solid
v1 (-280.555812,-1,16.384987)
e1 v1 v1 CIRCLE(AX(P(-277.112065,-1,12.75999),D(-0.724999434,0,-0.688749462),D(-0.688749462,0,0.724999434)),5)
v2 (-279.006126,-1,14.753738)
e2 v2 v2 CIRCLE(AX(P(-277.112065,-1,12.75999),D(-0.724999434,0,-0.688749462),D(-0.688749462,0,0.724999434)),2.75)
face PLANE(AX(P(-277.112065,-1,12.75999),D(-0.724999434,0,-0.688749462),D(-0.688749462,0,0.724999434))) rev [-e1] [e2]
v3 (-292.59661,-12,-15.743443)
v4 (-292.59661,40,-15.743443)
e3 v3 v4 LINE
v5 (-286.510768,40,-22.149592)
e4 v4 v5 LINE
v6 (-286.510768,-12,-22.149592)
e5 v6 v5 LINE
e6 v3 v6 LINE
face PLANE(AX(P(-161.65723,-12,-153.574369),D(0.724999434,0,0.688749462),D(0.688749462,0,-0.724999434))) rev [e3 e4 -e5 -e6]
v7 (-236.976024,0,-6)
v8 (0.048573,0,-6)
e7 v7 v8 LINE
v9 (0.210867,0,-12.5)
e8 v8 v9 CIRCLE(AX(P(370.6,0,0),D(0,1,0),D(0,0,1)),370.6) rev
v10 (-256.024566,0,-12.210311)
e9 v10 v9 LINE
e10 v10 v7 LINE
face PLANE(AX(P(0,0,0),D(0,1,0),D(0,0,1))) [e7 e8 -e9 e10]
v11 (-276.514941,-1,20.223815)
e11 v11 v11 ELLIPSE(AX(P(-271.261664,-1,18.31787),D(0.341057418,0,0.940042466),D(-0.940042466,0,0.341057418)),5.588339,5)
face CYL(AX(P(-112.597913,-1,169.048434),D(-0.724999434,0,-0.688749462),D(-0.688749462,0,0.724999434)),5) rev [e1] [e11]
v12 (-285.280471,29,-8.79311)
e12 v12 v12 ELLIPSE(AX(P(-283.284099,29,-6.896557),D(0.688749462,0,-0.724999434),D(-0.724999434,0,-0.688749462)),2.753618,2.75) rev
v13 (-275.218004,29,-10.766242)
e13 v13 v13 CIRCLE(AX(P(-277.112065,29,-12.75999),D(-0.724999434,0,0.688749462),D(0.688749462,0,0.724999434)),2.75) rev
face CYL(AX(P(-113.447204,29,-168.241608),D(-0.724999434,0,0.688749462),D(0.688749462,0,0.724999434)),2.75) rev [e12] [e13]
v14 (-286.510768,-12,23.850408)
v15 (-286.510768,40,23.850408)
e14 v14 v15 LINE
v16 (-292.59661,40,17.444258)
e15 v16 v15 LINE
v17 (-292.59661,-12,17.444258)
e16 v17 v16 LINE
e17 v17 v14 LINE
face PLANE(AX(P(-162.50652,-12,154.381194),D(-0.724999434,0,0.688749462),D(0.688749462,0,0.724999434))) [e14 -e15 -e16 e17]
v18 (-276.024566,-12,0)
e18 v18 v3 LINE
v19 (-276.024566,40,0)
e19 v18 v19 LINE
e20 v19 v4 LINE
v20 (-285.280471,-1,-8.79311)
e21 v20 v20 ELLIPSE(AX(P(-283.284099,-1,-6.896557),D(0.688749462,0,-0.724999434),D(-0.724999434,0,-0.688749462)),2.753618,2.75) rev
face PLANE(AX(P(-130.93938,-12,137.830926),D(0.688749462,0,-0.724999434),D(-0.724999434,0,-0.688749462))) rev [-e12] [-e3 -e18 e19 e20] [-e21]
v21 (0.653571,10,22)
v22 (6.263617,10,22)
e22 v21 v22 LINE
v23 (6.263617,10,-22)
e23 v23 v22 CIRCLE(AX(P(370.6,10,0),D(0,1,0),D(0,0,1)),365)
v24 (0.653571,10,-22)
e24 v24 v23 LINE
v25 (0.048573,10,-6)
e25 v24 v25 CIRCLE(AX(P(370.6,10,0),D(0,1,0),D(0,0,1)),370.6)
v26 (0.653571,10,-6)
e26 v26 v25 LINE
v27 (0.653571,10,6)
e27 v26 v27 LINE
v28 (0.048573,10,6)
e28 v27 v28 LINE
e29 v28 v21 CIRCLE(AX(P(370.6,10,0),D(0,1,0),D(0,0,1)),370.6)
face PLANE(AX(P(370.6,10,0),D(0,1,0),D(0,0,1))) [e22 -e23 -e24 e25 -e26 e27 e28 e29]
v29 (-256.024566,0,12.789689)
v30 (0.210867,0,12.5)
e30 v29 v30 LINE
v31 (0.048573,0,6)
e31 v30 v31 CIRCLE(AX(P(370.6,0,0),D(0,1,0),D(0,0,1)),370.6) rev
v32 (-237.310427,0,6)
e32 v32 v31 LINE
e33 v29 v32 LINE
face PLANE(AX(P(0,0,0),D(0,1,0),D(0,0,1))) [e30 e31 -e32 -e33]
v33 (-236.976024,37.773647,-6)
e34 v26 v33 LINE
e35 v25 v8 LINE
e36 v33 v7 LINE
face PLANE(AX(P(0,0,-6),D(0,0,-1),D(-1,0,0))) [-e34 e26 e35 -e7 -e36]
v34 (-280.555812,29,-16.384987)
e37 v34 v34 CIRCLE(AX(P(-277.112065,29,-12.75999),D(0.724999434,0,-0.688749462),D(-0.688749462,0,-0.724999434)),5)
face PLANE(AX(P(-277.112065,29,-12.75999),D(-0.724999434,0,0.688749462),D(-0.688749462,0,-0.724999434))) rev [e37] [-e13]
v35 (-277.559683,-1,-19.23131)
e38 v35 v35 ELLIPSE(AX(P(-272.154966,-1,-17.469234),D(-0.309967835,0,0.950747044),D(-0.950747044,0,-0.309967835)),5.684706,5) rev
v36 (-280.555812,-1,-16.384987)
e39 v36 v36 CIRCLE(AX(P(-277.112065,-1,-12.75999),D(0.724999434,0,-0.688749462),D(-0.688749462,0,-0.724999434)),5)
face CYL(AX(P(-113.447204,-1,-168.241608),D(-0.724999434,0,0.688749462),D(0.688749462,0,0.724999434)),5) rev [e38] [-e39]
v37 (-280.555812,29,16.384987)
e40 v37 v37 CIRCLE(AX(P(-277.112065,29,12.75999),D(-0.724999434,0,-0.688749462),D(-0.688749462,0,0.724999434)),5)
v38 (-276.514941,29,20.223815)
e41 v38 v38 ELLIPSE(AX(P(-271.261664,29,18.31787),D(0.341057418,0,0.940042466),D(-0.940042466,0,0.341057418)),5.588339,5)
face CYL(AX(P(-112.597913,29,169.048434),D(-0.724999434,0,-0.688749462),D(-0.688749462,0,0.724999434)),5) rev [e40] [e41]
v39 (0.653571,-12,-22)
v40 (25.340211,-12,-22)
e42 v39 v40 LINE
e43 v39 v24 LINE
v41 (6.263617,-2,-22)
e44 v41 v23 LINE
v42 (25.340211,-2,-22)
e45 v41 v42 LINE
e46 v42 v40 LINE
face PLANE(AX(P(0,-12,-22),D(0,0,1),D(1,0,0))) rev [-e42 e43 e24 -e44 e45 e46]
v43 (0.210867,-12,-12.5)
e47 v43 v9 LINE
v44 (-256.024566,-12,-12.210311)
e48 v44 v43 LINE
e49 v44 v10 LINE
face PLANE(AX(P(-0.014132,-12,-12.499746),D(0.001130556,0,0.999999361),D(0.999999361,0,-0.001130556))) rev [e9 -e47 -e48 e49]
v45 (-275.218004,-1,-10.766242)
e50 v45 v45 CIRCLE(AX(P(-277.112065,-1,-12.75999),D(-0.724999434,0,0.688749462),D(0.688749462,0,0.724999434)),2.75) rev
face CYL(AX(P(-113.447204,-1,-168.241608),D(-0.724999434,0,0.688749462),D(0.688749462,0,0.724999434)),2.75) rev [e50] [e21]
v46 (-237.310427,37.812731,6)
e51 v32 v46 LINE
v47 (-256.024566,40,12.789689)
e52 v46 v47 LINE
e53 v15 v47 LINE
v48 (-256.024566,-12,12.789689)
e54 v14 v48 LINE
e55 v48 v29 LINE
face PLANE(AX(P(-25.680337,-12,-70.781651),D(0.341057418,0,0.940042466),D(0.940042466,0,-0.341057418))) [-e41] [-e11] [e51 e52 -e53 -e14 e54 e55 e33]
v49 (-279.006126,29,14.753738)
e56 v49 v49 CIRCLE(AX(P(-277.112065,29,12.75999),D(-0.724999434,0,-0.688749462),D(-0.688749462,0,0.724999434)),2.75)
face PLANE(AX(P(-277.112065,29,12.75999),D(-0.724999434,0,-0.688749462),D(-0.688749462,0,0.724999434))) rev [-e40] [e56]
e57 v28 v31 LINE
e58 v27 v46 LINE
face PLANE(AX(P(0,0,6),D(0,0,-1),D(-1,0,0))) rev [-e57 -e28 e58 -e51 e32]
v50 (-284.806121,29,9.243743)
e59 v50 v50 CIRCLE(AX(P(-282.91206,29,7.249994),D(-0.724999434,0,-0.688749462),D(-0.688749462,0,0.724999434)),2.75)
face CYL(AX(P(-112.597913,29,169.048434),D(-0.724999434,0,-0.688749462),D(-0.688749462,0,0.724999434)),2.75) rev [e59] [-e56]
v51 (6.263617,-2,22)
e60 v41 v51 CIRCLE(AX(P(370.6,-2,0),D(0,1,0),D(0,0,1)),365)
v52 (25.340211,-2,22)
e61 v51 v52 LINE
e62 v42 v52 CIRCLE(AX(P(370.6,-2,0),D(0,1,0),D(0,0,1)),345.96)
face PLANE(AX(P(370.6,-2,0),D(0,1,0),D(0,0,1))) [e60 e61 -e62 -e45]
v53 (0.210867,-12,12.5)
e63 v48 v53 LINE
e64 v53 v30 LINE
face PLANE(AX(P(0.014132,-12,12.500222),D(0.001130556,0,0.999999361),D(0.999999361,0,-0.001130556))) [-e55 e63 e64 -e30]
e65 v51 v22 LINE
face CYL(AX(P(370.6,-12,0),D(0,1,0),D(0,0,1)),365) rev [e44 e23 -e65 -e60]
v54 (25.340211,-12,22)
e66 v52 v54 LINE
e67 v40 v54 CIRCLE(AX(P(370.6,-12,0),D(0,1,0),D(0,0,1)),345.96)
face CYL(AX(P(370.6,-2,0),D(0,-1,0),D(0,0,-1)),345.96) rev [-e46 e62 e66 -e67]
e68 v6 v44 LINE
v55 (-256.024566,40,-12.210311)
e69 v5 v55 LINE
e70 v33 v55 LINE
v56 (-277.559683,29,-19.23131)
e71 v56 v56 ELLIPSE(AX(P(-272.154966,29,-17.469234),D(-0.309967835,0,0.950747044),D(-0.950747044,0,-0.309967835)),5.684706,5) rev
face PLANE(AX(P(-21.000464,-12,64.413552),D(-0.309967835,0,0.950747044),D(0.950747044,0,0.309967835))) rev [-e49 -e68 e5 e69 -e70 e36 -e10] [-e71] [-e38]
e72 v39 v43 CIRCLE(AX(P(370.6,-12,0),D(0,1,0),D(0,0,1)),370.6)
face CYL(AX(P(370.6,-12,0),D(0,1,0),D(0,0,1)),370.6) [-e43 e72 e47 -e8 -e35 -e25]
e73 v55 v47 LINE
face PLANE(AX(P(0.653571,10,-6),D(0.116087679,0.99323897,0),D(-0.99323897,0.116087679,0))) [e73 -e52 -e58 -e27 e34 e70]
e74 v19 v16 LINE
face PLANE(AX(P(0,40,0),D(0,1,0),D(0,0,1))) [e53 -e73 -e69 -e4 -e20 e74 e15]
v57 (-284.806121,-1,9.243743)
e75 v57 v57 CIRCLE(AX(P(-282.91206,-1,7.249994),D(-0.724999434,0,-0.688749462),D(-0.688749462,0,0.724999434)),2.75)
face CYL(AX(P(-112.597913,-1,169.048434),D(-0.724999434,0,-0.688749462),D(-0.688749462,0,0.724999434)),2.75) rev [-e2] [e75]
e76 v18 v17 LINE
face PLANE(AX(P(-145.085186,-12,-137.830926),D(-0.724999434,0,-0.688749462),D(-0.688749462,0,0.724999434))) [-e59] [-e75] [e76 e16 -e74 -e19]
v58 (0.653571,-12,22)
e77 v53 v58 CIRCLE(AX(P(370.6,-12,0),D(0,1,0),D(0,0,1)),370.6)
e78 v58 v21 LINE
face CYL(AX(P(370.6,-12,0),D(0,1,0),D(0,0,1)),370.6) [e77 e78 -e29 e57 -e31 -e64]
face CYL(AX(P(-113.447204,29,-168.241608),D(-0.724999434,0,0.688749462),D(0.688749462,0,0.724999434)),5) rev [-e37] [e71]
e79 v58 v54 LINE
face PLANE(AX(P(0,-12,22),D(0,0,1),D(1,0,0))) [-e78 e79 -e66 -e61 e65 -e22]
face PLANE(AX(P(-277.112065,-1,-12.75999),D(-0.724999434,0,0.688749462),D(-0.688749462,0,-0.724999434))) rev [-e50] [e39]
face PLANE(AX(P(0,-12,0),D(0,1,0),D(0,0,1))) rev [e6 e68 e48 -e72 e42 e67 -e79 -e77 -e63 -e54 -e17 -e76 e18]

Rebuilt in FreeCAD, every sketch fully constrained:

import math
import FreeCAD as App
import Part
import Sketcher

doc = App.newDocument("Part")
body = doc.addObject("PartDesign::Body", "Body")

# Sketch on XZ plane
sketch1 = body.newObject("Sketcher::SketchObject", "Sketch")
sketch1.AttachmentSupport = (doc.getObject("XZ_Plane"), [""])
sketch1.MapMode = "FlatFace"
sketch1.addGeometry(Part.LineSegment(App.Vector(-293, -16, 0), App.Vector(-276, 0, 0)), False)
sketch1.addGeometry(Part.LineSegment(App.Vector(-276, 0, 0), App.Vector(-293, 17, 0)), False)
sketch1.addGeometry(Part.LineSegment(App.Vector(-293, 17, 0), App.Vector(-287, 24, 0)), False)
sketch1.addGeometry(Part.LineSegment(App.Vector(-287, 24, 0), App.Vector(-256, 13, 0)), False)
sketch1.addGeometry(Part.LineSegment(App.Vector(-256, 13, 0), App.Vector(0, 12, 0)), False)
sketch1.addGeometry(Part.ArcOfCircle(Part.Circle(App.Vector(371, 0, 0), App.Vector(0, 0, 1), 371), math.radians(176.6), math.radians(178.07)), False)
sketch1.addGeometry(Part.LineSegment(App.Vector(1, 22, 0), App.Vector(6, 22, 0)), False)
sketch1.addGeometry(Part.ArcOfCircle(Part.Circle(App.Vector(371, 0, 0), App.Vector(0, 0, 1), 365), math.radians(176.54), math.radians(183.46)), False)
sketch1.addGeometry(Part.LineSegment(App.Vector(6, -22, 0), App.Vector(1, -22, 0)), False)
sketch1.addGeometry(Part.ArcOfCircle(Part.Circle(App.Vector(371, 0, 0), App.Vector(0, 0, 1), 371), math.radians(-178.07), math.radians(-176.6)), False)
sketch1.addGeometry(Part.LineSegment(App.Vector(0, -12, 0), App.Vector(-256, -12, 0)), False)
sketch1.addGeometry(Part.LineSegment(App.Vector(-256, -12, 0), App.Vector(-287, -22, 0)), False)
sketch1.addGeometry(Part.LineSegment(App.Vector(-287, -22, 0), App.Vector(-293, -16, 0)), False)
sketch1.addConstraint(Sketcher.Constraint("Coincident", 0, 2, 1, 1))
sketch1.addConstraint(Sketcher.Constraint("Coincident", 1, 2, 2, 1))
sketch1.addConstraint(Sketcher.Constraint("Coincident", 2, 2, 3, 1))
sketch1.addConstraint(Sketcher.Constraint("Coincident", 3, 2, 4, 1))
sketch1.addConstraint(Sketcher.Constraint("Coincident", 4, 2, 5, 2))
sketch1.addConstraint(Sketcher.Constraint("Coincident", 5, 1, 6, 1))
sketch1.addConstraint(Sketcher.Constraint("Coincident", 6, 2, 7, 1))
sketch1.addConstraint(Sketcher.Constraint("Coincident", 7, 2, 8, 1))
sketch1.addConstraint(Sketcher.Constraint("Coincident", 8, 2, 9, 2))
sketch1.addConstraint(Sketcher.Constraint("Coincident", 9, 1, 10, 1))
sketch1.addConstraint(Sketcher.Constraint("Coincident", 10, 2, 11, 1))
sketch1.addConstraint(Sketcher.Constraint("Coincident", 11, 2, 12, 1))
sketch1.addConstraint(Sketcher.Constraint("Coincident", 12, 2, 0, 1))
sketch1.addConstraint(Sketcher.Constraint("Horizontal", 6))
sketch1.addConstraint(Sketcher.Constraint("Horizontal", 8))
sketch1.addConstraint(Sketcher.Constraint("Coincident", 7, 3, 5, 3))
sketch1.addConstraint(Sketcher.Constraint("Coincident", 9, 3, 5, 3))
sketch1.addConstraint(Sketcher.Constraint("Equal", 5, 9))
sketch1.addConstraint(Sketcher.Constraint("Symmetric", 6, 2, 7, 2, -1))
sketch1.addConstraint(Sketcher.Constraint("PointOnObject", 0, 2, -1))
sketch1.addConstraint(Sketcher.Constraint("Perpendicular", 0, 1))
sketch1.addConstraint(Sketcher.Constraint("Parallel", 4, 10))
sketch1.addConstraint(Sketcher.Constraint("Parallel", 1, 12))
sketch1.addConstraint(Sketcher.Constraint("Vertical", 4, 2, 9, 1))
sketch1.addConstraint(Sketcher.Constraint("Vertical", 3, 2, 10, 2))
sketch1.addConstraint(Sketcher.Constraint("Vertical", 2, 2, 11, 2))
sketch1.addConstraint(Sketcher.Constraint("Vertical", 1, 2, 12, 2))
sketch1.addConstraint(Sketcher.Constraint("Equal", 2, 12))
sketch1.addConstraint(Sketcher.Constraint("Radius", 7, 365.0))
sketch1.addConstraint(Sketcher.Constraint("DistanceY", -1, 1, 6, 2, 22.0))
sketch1.addConstraint(Sketcher.Constraint("DistanceX", 0, 2, 3, 2, 20.0))
sketch1.addConstraint(Sketcher.Constraint("DistanceY", 9, 1, 4, 2, 25.0))
sketch1.addConstraint(Sketcher.Constraint("DistanceY", 11, 2, 2, 2, 46.0))
sketch1.addConstraint(Sketcher.Constraint("DistanceX", -1, 1, 7, 3, 370.6))
sketch1.addConstraint(Sketcher.Constraint("Radius", 5, 370.599996))
sketch1.addConstraint(Sketcher.Constraint("DistanceY", 12, 2, 1, 2, 33.1877))
sketch1.addConstraint(Sketcher.Constraint("Distance", 0, 22.858011))
sketch1.addConstraint(Sketcher.Constraint("DistanceX", 1, 2, -1, 1, 292.59661))
sketch1.addConstraint(Sketcher.Constraint("DistanceY", -1, 1, 3, 2, 12.789689))
pad1 = body.newObject("PartDesign::Pad", "Pad")
pad1.Profile = sketch1
pad1.Length = 12

# Sketch on XZ plane
sketch2 = body.newObject("Sketcher::SketchObject", "Sketch001")
sketch2.AttachmentSupport = (doc.getObject("XZ_Plane"), [""])
sketch2.MapMode = "FlatFace"
sketch2.AttachmentOffset = App.Placement(App.Vector(0, 0, 2), App.Rotation())
sketch2.addGeometry(Part.LineSegment(App.Vector(25, -22, 0), App.Vector(6, -22, 0)), False)
sketch2.addGeometry(Part.ArcOfCircle(Part.Circle(App.Vector(371, 0, 0), App.Vector(0, 0, 1), 365), math.radians(176.54), math.radians(183.46)), False)
sketch2.addGeometry(Part.LineSegment(App.Vector(6, 22, 0), App.Vector(25, 22, 0)), False)
sketch2.addGeometry(Part.ArcOfCircle(Part.Circle(App.Vector(371, 0, 0), App.Vector(0, 0, 1), 346), math.radians(176.35), math.radians(183.65)), False)
sketch2.addConstraint(Sketcher.Constraint("Coincident", 0, 2, 1, 2))
sketch2.addConstraint(Sketcher.Constraint("Coincident", 1, 1, 2, 1))
sketch2.addConstraint(Sketcher.Constraint("Coincident", 2, 2, 3, 1))
sketch2.addConstraint(Sketcher.Constraint("Coincident", 3, 2, 0, 1))
sketch2.addConstraint(Sketcher.Constraint("Horizontal", 0))
sketch2.addConstraint(Sketcher.Constraint("Horizontal", 2))
sketch2.addConstraint(Sketcher.Constraint("Coincident", 3, 3, 1, 3))
sketch2.addConstraint(Sketcher.Constraint("Symmetric", 0, 2, 1, 1, -1))
sketch2.addConstraint(Sketcher.Constraint("Radius", 1, 365.0))
sketch2.addConstraint(Sketcher.Constraint("Radius", 3, 345.96))
sketch2.addConstraint(Sketcher.Constraint("DistanceY", 0, 2, -1, 1, 22.0))
sketch2.addConstraint(Sketcher.Constraint("DistanceX", -1, 1, 1, 3, 370.6))
pad2 = body.newObject("PartDesign::Pad", "Pad001")
pad2.Profile = sketch2
pad2.Length = 10

# Sketch on XZ plane
sketch3 = body.newObject("Sketcher::SketchObject", "Sketch002")
sketch3.AttachmentSupport = (doc.getObject("XZ_Plane"), [""])
sketch3.MapMode = "FlatFace"
sketch3.AttachmentOffset = App.Placement(App.Vector(0, 0, -10), App.Rotation())
sketch3.addGeometry(Part.ArcOfCircle(Part.Circle(App.Vector(371, 0, 0), App.Vector(0, 0, 1), 371), math.radians(-178.07), math.radians(-176.6)), False)
sketch3.addGeometry(Part.ArcOfCircle(Part.Circle(App.Vector(371, 0, 0), App.Vector(0, 0, 1), 371), math.radians(178.07), math.radians(181.93)), False)
sketch3.addGeometry(Part.ArcOfCircle(Part.Circle(App.Vector(371, 0, 0), App.Vector(0, 0, 1), 371), math.radians(176.6), math.radians(178.07)), False)
sketch3.addGeometry(Part.LineSegment(App.Vector(1, 22, 0), App.Vector(6, 22, 0)), False)
sketch3.addGeometry(Part.ArcOfCircle(Part.Circle(App.Vector(371, 0, 0), App.Vector(0, 0, 1), 365), math.radians(176.54), math.radians(183.46)), False)
sketch3.addGeometry(Part.LineSegment(App.Vector(6, -22, 0), App.Vector(1, -22, 0)), False)
sketch3.addConstraint(Sketcher.Constraint("Tangent", 0, 1, 1, 2))
sketch3.addConstraint(Sketcher.Constraint("Tangent", 1, 1, 2, 2))
sketch3.addConstraint(Sketcher.Constraint("Coincident", 2, 1, 3, 1))
sketch3.addConstraint(Sketcher.Constraint("Coincident", 3, 2, 4, 1))
sketch3.addConstraint(Sketcher.Constraint("Coincident", 4, 2, 5, 1))
sketch3.addConstraint(Sketcher.Constraint("Coincident", 5, 2, 0, 2))
sketch3.addConstraint(Sketcher.Constraint("Horizontal", 3))
sketch3.addConstraint(Sketcher.Constraint("Horizontal", 5))
sketch3.addConstraint(Sketcher.Constraint("Coincident", 2, 3, 0, 3))
sketch3.addConstraint(Sketcher.Constraint("Coincident", 4, 3, 0, 3))
sketch3.addConstraint(Sketcher.Constraint("PointOnObject", 0, 3, -1))
sketch3.addConstraint(Sketcher.Constraint("Vertical", 0, 1, 1, 1))
sketch3.addConstraint(Sketcher.Constraint("Vertical", 3, 2, 4, 2))
sketch3.addConstraint(Sketcher.Constraint("Radius", 4, 365.0))
sketch3.addConstraint(Sketcher.Constraint("Radius", 1, 370.6))
sketch3.addConstraint(Sketcher.Constraint("DistanceY", -1, 1, 3, 2, 22.0))
sketch3.addConstraint(Sketcher.Constraint("DistanceY", 0, 1, 1, 1, 25.0))
sketch3.addConstraint(Sketcher.Constraint("DistanceX", -1, 1, 1, 3, 370.6))
pad3 = body.newObject("PartDesign::Pad", "Pad002")
pad3.Profile = sketch3
pad3.Length = 22

# Sketch on XZ plane
sketch4 = body.newObject("Sketcher::SketchObject", "Sketch003")
sketch4.AttachmentSupport = (doc.getObject("XZ_Plane"), [""])
sketch4.MapMode = "FlatFace"
sketch4.addGeometry(Part.LineSegment(App.Vector(-293, -16, 0), App.Vector(-276, 0, 0)), False)
sketch4.addGeometry(Part.LineSegment(App.Vector(-276, 0, 0), App.Vector(-293, 17, 0)), False)
sketch4.addGeometry(Part.LineSegment(App.Vector(-293, 17, 0), App.Vector(-287, 24, 0)), False)
sketch4.addGeometry(Part.LineSegment(App.Vector(-287, 24, 0), App.Vector(-220, 0, 0)), False)
sketch4.addGeometry(Part.LineSegment(App.Vector(-220, 0, 0), App.Vector(-287, -22, 0)), False)
sketch4.addGeometry(Part.LineSegment(App.Vector(-287, -22, 0), App.Vector(-293, -16, 0)), False)
sketch4.addConstraint(Sketcher.Constraint("Coincident", 0, 2, 1, 1))
sketch4.addConstraint(Sketcher.Constraint("Coincident", 1, 2, 2, 1))
sketch4.addConstraint(Sketcher.Constraint("Coincident", 2, 2, 3, 1))
sketch4.addConstraint(Sketcher.Constraint("Coincident", 3, 2, 4, 1))
sketch4.addConstraint(Sketcher.Constraint("Coincident", 4, 2, 5, 1))
sketch4.addConstraint(Sketcher.Constraint("Coincident", 5, 2, 0, 1))
sketch4.addConstraint(Sketcher.Constraint("PointOnObject", 0, 2, -1))
sketch4.addConstraint(Sketcher.Constraint("Perpendicular", 0, 1))
sketch4.addConstraint(Sketcher.Constraint("Parallel", 1, 5))
sketch4.addConstraint(Sketcher.Constraint("Vertical", 2, 2, 4, 2))
sketch4.addConstraint(Sketcher.Constraint("Vertical", 1, 2, 5, 2))
sketch4.addConstraint(Sketcher.Constraint("Equal", 2, 5))
sketch4.addConstraint(Sketcher.Constraint("DistanceY", 4, 2, 2, 2, 46.0))
sketch4.addConstraint(Sketcher.Constraint("Distance", 3, 71.0386))
sketch4.addConstraint(Sketcher.Constraint("DistanceX", 0, 2, 3, 2, 56.293098))
sketch4.addConstraint(Sketcher.Constraint("DistanceX", 2, 2, 3, 2, 66.7793))
sketch4.addConstraint(Sketcher.Constraint("DistanceY", 5, 2, 1, 2, 33.1877))
sketch4.addConstraint(Sketcher.Constraint("DistanceX", 1, 2, -1, 1, 292.59661))
pad4 = body.newObject("PartDesign::Pad", "Pad003")
pad4.Profile = sketch4
pad4.Length = 40
pad4.Reversed = True

# Sketch on XY plane
sketch5 = body.newObject("Sketcher::SketchObject", "Sketch004")
sketch5.AttachmentSupport = (doc.getObject("XY_Plane"), [""])
sketch5.MapMode = "FlatFace"
sketch5.addGeometry(Part.LineSegment(App.Vector(1, 10, 0), App.Vector(-256, 40, 0)), False)
sketch5.addGeometry(Part.LineSegment(App.Vector(-256, 40, 0), App.Vector(-256, 0, 0)), False)
sketch5.addGeometry(Part.LineSegment(App.Vector(-256, 0, 0), App.Vector(1, 0, 0)), False)
sketch5.addGeometry(Part.LineSegment(App.Vector(1, 0, 0), App.Vector(1, 10, 0)), False)
sketch5.addConstraint(Sketcher.Constraint("Coincident", 0, 2, 1, 1))
sketch5.addConstraint(Sketcher.Constraint("Coincident", 1, 2, 2, 1))
sketch5.addConstraint(Sketcher.Constraint("Coincident", 2, 2, 3, 1))
sketch5.addConstraint(Sketcher.Constraint("Coincident", 3, 2, 0, 1))
sketch5.addConstraint(Sketcher.Constraint("Vertical", 1))
sketch5.addConstraint(Sketcher.Constraint("Horizontal", 2))
sketch5.addConstraint(Sketcher.Constraint("Vertical", 3))
sketch5.addConstraint(Sketcher.Constraint("PointOnObject", 1, 2, -1))
sketch5.addConstraint(Sketcher.Constraint("DistanceY", 1, 2, 1, 1, 40.0))
sketch5.addConstraint(Sketcher.Constraint("DistanceY", 3, 1, 3, 2, 10.0))
sketch5.addConstraint(Sketcher.Constraint("Distance", 0, 258.425359))
sketch5.addConstraint(Sketcher.Constraint("DistanceX", -1, 1, 2, 2, 0.653571))
pad5 = body.newObject("PartDesign::Pad", "Pad004")
pad5.Profile = sketch5
pad5.Type = "TwoLengths"
pad5.Length = 6
pad5.Length2 = 6

# Sketch on XY plane
sketch6 = body.newObject("Sketcher::SketchObject", "Sketch005")
sketch6.AttachmentSupport = (doc.getObject("XY_Plane"), [""])
sketch6.MapMode = "FlatFace"
sketch6.addGeometry(Part.LineSegment(App.Vector(-256, 40, 0), App.Vector(1, 10, 0)), False)
sketch6.addGeometry(Part.LineSegment(App.Vector(1, 10, 0), App.Vector(2, 20, 0)), False)
sketch6.addGeometry(Part.LineSegment(App.Vector(2, 20, 0), App.Vector(-255, 50, 0)), False)
sketch6.addGeometry(Part.LineSegment(App.Vector(-255, 50, 0), App.Vector(-256, 40, 0)), False)
sketch6.addConstraint(Sketcher.Constraint("Coincident", 0, 2, 1, 1))
sketch6.addConstraint(Sketcher.Constraint("Coincident", 1, 2, 2, 1))
sketch6.addConstraint(Sketcher.Constraint("Coincident", 2, 2, 3, 1))
sketch6.addConstraint(Sketcher.Constraint("Coincident", 3, 2, 0, 1))
sketch6.addConstraint(Sketcher.Constraint("Perpendicular", 0, 1))
sketch6.addConstraint(Sketcher.Constraint("Perpendicular", 1, 2))
sketch6.addConstraint(Sketcher.Constraint("Perpendicular", 2, 3))
sketch6.addConstraint(Sketcher.Constraint("Distance", 1, 10.0))
sketch6.addConstraint(Sketcher.Constraint("DistanceY", -1, 1, 0, 2, 10.0))
sketch6.addConstraint(Sketcher.Constraint("DistanceY", -1, 1, 3, 2, 40.0))
sketch6.addConstraint(Sketcher.Constraint("Distance", 0, 258.425359))
sketch6.addConstraint(Sketcher.Constraint("DistanceX", -1, 1, 0, 2, 0.653571))
pocket1 = body.newObject("PartDesign::Pocket", "Pocket")
pocket1.Profile = sketch6
pocket1.Type = "ThroughAll"
pocket1.Midplane = True

# Sketch on an angled plane
sketch7 = body.newObject("Sketcher::SketchObject", "Sketch006")
sketch7.Placement = App.Placement(App.Vector(-139.28519, 0, -132.320931), App.Rotation(App.Vector(-0.688749462, 0, 0.724999434), App.Vector(0, 1.000000001, 0), App.Vector(-0.724999434, 0, -0.688749462), "ZXY"))
sketch7.addGeometry(Part.Circle(App.Vector(200, 29, 0), App.Vector(0, 0, 1), 5), False)
sketch7.addGeometry(Part.Circle(App.Vector(200, -1, 0), App.Vector(0, 0, 1), 5), False)
sketch7.addConstraint(Sketcher.Constraint("Equal", 0, 1))
sketch7.addConstraint(Sketcher.Constraint("Vertical", 0, 3, 1, 3))
sketch7.addConstraint(Sketcher.Constraint("Diameter", 0, 10.0))
sketch7.addConstraint(Sketcher.Constraint("DistanceY", -1, 1, 0, 3, 29.0))
sketch7.addConstraint(Sketcher.Constraint("DistanceY", 1, 3, -1, 1, 1.0))
sketch7.addConstraint(Sketcher.Constraint("DistanceX", -1, 1, 0, 3, 200.111771))
pocket2 = body.newObject("PartDesign::Pocket", "Pocket001")
pocket2.Profile = sketch7
pocket2.Type = "ThroughAll"

# Sketch on an angled plane
sketch8 = body.newObject("Sketcher::SketchObject", "Sketch007")
sketch8.Placement = App.Placement(App.Vector(-145.085186, 0, -137.830926), App.Rotation(App.Vector(-0.688749462, 0, 0.724999434), App.Vector(0, 1.000000001, 0), App.Vector(-0.724999434, 0, -0.688749462), "ZXY"))
sketch8.addGeometry(Part.Circle(App.Vector(200.1, 29, 0), App.Vector(0, 0, 1), 2.8), False)
sketch8.addGeometry(Part.Circle(App.Vector(200.1, -1, 0), App.Vector(0, 0, 1), 2.8), False)
sketch8.addConstraint(Sketcher.Constraint("Equal", 0, 1))
sketch8.addConstraint(Sketcher.Constraint("Vertical", 0, 3, 1, 3))
sketch8.addConstraint(Sketcher.Constraint("Diameter", 0, 5.5))
sketch8.addConstraint(Sketcher.Constraint("DistanceY", -1, 1, 0, 3, 29.0))
sketch8.addConstraint(Sketcher.Constraint("DistanceY", 1, 3, -1, 1, 1.0))
sketch8.addConstraint(Sketcher.Constraint("DistanceX", -1, 1, 0, 3, 200.111771))
pocket3 = body.newObject("PartDesign::Pocket", "Pocket002")
pocket3.Profile = sketch8
pocket3.Length = 478.594879
pocket3.Midplane = True
doc.recompute()

mirrored = body.newObject("PartDesign::Mirrored", "Mirrored")
mirrored.Originals = [pocket2, pocket3]
mirrored.MirrorPlane = (doc.getObject("XY_Plane"), [""])
body.Tip = mirrored

doc.recompute()
